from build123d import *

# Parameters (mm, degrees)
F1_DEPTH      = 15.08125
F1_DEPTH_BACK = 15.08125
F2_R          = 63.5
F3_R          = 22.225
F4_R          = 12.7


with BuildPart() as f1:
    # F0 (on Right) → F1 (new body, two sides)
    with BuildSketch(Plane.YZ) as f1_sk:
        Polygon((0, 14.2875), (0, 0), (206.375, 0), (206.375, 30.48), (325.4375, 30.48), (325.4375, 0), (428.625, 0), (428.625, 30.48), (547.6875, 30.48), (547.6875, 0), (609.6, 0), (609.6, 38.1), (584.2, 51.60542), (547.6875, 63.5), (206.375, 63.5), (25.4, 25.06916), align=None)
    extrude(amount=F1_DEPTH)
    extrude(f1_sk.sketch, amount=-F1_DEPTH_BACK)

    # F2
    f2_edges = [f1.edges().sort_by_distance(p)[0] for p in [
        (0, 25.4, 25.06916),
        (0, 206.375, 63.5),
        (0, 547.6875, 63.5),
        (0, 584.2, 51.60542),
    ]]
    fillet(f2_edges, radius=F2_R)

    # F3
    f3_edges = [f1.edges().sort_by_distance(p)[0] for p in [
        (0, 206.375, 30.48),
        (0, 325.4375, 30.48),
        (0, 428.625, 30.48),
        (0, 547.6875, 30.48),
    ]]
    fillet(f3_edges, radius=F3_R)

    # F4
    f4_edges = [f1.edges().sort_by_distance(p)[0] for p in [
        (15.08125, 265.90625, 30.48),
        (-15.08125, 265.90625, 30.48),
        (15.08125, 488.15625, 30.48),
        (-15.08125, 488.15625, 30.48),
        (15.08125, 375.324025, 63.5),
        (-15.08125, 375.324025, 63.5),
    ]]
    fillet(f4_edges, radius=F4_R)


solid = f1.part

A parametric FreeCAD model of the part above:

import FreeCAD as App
import Part
import Sketcher

V = App.Vector
Q = App.Units.Quantity


def edges_at(feature, points):
    """Names of the edges that pass closest to the given points."""
    edges = feature.Shape.Edges
    near = lambda p: min(range(len(edges)), key=lambda i: edges[i].distToShape(Part.Vertex(*p))[0])
    return sorted({f"Edge{near(p) + 1}" for p in points})


def add_polygon(sketch, points):
    """Adds a closed chain of lines whose ends are joined by coincident constraints."""
    first, n = sketch.GeometryCount, len(points)
    for a, b in zip(points, points[1:] + points[:1]):
        sketch.addGeometry(Part.LineSegment(App.Vector(*a, 0), App.Vector(*b, 0)), False)
    for i in range(n):
        sketch.addConstraint(Sketcher.Constraint("Coincident", first + i, 2, first + (i + 1) % n, 1))

doc = App.newDocument("Part")
body = doc.addObject("PartDesign::Body", "Body")

# Sketch on YZ plane
sketch1 = body.newObject("Sketcher::SketchObject", "Sketch")
sketch1.AttachmentSupport = (doc.getObject("YZ_Plane"), [""])
sketch1.MapMode = "FlatFace"
add_polygon(sketch1, [(0, 14), (0, 0), (206, 0), (206, 30), (325, 30), (325, 0), (429, 0), (429, 30), (548, 30), (548, 0), (610, 0), (610, 38), (584, 52), (548, 64), (206, 64), (25, 25)])  # lines 0-15
sketch1.addConstraint([
    Sketcher.Constraint("Vertical", 0),
    Sketcher.Constraint("Horizontal", 1),
    Sketcher.Constraint("Vertical", 2),
    Sketcher.Constraint("Horizontal", 3),
    Sketcher.Constraint("Vertical", 4),
    Sketcher.Constraint("Horizontal", 5),
    Sketcher.Constraint("Vertical", 6),
    Sketcher.Constraint("Horizontal", 7),
    Sketcher.Constraint("Vertical", 8),
    Sketcher.Constraint("Horizontal", 9),
    Sketcher.Constraint("Vertical", 10),
    Sketcher.Constraint("Horizontal", 13),
    Sketcher.Constraint("Coincident", 0, 2, -1, 1),
    Sketcher.Constraint("PointOnObject", 4, 2, -1),
    Sketcher.Constraint("PointOnObject", 8, 2, -1),
    Sketcher.Constraint("Horizontal", 3, 2, 6, 2),
    Sketcher.Constraint("Vertical", 8, 2, 12, 2),
    Sketcher.Constraint("Vertical", 2, 2, 13, 2),
    Sketcher.Constraint("Equal", 3, 7),
    Sketcher.Constraint("DistanceY", 2, 1, 2, 2, Q("1.2 in")),
    Sketcher.Constraint("DistanceY", 10, 1, 10, 2, Q("1.5 in")),
    Sketcher.Constraint("DistanceX", -1, 1, 9, 2, Q("24 in")),
    Sketcher.Constraint("DistanceX", -1, 1, 11, 2, Q("23 in")),
    Sketcher.Constraint("DistanceX", -1, 1, 14, 2, Q("1 in")),
    Sketcher.Constraint("Angle", 11, Q("151.999999 deg")),
    Sketcher.Constraint("Angle", 15, Q("-157.000001 deg")),
    Sketcher.Constraint("DistanceY", 10, 2, 12, 2, Q("1 in")),
    Sketcher.Constraint("DistanceX", 1, 1, 1, 2, Q("8.125 in")),
    Sketcher.Constraint("DistanceX", 3, 1, 3, 2, Q("4.6875 in")),
    Sketcher.Constraint("DistanceX", 5, 1, 5, 2, Q("4.0625 in")),
    Sketcher.Constraint("DistanceY", 0, 2, 0, 1, Q("0.5625 in")),
])
pad1 = body.newObject("PartDesign::Pad", "Pad")
pad1.Profile = sketch1
pad1.Type = "TwoLengths"
pad1.Length = Q("0.59375 in")
pad1.Length2 = Q("0.59375 in")
doc.recompute()

fillet = body.newObject("PartDesign::Fillet", "Fillet")
fillet.Base = (pad1, edges_at(pad1, [
    (0, 25.4, 25.069),
    (0, 206.375, 63.5),
    (0, 547.688, 63.5),
    (0, 584.2, 51.605),
]))
fillet.Radius = Q("2.5 in")
doc.recompute()

fillet2 = body.newObject("PartDesign::Fillet", "Fillet001")
fillet2.Base = (fillet, edges_at(fillet, [
    (0, 206.375, 30.48),
    (0, 325.438, 30.48),
    (0, 428.625, 30.48),
    (0, 547.688, 30.48),
]))
fillet2.Radius = Q("0.875 in")
doc.recompute()

fillet3 = body.newObject("PartDesign::Fillet", "Fillet002")
fillet3.Base = (fillet2, edges_at(fillet2, [
    (15.081, 265.906, 30.48),
    (-15.081, 265.906, 30.48),
    (15.081, 488.156, 30.48),
    (-15.081, 488.156, 30.48),
    (15.081, 375.324, 63.5),
    (-15.081, 375.324, 63.5),
]))
fillet3.Radius = Q("0.5 in")

doc.recompute()
